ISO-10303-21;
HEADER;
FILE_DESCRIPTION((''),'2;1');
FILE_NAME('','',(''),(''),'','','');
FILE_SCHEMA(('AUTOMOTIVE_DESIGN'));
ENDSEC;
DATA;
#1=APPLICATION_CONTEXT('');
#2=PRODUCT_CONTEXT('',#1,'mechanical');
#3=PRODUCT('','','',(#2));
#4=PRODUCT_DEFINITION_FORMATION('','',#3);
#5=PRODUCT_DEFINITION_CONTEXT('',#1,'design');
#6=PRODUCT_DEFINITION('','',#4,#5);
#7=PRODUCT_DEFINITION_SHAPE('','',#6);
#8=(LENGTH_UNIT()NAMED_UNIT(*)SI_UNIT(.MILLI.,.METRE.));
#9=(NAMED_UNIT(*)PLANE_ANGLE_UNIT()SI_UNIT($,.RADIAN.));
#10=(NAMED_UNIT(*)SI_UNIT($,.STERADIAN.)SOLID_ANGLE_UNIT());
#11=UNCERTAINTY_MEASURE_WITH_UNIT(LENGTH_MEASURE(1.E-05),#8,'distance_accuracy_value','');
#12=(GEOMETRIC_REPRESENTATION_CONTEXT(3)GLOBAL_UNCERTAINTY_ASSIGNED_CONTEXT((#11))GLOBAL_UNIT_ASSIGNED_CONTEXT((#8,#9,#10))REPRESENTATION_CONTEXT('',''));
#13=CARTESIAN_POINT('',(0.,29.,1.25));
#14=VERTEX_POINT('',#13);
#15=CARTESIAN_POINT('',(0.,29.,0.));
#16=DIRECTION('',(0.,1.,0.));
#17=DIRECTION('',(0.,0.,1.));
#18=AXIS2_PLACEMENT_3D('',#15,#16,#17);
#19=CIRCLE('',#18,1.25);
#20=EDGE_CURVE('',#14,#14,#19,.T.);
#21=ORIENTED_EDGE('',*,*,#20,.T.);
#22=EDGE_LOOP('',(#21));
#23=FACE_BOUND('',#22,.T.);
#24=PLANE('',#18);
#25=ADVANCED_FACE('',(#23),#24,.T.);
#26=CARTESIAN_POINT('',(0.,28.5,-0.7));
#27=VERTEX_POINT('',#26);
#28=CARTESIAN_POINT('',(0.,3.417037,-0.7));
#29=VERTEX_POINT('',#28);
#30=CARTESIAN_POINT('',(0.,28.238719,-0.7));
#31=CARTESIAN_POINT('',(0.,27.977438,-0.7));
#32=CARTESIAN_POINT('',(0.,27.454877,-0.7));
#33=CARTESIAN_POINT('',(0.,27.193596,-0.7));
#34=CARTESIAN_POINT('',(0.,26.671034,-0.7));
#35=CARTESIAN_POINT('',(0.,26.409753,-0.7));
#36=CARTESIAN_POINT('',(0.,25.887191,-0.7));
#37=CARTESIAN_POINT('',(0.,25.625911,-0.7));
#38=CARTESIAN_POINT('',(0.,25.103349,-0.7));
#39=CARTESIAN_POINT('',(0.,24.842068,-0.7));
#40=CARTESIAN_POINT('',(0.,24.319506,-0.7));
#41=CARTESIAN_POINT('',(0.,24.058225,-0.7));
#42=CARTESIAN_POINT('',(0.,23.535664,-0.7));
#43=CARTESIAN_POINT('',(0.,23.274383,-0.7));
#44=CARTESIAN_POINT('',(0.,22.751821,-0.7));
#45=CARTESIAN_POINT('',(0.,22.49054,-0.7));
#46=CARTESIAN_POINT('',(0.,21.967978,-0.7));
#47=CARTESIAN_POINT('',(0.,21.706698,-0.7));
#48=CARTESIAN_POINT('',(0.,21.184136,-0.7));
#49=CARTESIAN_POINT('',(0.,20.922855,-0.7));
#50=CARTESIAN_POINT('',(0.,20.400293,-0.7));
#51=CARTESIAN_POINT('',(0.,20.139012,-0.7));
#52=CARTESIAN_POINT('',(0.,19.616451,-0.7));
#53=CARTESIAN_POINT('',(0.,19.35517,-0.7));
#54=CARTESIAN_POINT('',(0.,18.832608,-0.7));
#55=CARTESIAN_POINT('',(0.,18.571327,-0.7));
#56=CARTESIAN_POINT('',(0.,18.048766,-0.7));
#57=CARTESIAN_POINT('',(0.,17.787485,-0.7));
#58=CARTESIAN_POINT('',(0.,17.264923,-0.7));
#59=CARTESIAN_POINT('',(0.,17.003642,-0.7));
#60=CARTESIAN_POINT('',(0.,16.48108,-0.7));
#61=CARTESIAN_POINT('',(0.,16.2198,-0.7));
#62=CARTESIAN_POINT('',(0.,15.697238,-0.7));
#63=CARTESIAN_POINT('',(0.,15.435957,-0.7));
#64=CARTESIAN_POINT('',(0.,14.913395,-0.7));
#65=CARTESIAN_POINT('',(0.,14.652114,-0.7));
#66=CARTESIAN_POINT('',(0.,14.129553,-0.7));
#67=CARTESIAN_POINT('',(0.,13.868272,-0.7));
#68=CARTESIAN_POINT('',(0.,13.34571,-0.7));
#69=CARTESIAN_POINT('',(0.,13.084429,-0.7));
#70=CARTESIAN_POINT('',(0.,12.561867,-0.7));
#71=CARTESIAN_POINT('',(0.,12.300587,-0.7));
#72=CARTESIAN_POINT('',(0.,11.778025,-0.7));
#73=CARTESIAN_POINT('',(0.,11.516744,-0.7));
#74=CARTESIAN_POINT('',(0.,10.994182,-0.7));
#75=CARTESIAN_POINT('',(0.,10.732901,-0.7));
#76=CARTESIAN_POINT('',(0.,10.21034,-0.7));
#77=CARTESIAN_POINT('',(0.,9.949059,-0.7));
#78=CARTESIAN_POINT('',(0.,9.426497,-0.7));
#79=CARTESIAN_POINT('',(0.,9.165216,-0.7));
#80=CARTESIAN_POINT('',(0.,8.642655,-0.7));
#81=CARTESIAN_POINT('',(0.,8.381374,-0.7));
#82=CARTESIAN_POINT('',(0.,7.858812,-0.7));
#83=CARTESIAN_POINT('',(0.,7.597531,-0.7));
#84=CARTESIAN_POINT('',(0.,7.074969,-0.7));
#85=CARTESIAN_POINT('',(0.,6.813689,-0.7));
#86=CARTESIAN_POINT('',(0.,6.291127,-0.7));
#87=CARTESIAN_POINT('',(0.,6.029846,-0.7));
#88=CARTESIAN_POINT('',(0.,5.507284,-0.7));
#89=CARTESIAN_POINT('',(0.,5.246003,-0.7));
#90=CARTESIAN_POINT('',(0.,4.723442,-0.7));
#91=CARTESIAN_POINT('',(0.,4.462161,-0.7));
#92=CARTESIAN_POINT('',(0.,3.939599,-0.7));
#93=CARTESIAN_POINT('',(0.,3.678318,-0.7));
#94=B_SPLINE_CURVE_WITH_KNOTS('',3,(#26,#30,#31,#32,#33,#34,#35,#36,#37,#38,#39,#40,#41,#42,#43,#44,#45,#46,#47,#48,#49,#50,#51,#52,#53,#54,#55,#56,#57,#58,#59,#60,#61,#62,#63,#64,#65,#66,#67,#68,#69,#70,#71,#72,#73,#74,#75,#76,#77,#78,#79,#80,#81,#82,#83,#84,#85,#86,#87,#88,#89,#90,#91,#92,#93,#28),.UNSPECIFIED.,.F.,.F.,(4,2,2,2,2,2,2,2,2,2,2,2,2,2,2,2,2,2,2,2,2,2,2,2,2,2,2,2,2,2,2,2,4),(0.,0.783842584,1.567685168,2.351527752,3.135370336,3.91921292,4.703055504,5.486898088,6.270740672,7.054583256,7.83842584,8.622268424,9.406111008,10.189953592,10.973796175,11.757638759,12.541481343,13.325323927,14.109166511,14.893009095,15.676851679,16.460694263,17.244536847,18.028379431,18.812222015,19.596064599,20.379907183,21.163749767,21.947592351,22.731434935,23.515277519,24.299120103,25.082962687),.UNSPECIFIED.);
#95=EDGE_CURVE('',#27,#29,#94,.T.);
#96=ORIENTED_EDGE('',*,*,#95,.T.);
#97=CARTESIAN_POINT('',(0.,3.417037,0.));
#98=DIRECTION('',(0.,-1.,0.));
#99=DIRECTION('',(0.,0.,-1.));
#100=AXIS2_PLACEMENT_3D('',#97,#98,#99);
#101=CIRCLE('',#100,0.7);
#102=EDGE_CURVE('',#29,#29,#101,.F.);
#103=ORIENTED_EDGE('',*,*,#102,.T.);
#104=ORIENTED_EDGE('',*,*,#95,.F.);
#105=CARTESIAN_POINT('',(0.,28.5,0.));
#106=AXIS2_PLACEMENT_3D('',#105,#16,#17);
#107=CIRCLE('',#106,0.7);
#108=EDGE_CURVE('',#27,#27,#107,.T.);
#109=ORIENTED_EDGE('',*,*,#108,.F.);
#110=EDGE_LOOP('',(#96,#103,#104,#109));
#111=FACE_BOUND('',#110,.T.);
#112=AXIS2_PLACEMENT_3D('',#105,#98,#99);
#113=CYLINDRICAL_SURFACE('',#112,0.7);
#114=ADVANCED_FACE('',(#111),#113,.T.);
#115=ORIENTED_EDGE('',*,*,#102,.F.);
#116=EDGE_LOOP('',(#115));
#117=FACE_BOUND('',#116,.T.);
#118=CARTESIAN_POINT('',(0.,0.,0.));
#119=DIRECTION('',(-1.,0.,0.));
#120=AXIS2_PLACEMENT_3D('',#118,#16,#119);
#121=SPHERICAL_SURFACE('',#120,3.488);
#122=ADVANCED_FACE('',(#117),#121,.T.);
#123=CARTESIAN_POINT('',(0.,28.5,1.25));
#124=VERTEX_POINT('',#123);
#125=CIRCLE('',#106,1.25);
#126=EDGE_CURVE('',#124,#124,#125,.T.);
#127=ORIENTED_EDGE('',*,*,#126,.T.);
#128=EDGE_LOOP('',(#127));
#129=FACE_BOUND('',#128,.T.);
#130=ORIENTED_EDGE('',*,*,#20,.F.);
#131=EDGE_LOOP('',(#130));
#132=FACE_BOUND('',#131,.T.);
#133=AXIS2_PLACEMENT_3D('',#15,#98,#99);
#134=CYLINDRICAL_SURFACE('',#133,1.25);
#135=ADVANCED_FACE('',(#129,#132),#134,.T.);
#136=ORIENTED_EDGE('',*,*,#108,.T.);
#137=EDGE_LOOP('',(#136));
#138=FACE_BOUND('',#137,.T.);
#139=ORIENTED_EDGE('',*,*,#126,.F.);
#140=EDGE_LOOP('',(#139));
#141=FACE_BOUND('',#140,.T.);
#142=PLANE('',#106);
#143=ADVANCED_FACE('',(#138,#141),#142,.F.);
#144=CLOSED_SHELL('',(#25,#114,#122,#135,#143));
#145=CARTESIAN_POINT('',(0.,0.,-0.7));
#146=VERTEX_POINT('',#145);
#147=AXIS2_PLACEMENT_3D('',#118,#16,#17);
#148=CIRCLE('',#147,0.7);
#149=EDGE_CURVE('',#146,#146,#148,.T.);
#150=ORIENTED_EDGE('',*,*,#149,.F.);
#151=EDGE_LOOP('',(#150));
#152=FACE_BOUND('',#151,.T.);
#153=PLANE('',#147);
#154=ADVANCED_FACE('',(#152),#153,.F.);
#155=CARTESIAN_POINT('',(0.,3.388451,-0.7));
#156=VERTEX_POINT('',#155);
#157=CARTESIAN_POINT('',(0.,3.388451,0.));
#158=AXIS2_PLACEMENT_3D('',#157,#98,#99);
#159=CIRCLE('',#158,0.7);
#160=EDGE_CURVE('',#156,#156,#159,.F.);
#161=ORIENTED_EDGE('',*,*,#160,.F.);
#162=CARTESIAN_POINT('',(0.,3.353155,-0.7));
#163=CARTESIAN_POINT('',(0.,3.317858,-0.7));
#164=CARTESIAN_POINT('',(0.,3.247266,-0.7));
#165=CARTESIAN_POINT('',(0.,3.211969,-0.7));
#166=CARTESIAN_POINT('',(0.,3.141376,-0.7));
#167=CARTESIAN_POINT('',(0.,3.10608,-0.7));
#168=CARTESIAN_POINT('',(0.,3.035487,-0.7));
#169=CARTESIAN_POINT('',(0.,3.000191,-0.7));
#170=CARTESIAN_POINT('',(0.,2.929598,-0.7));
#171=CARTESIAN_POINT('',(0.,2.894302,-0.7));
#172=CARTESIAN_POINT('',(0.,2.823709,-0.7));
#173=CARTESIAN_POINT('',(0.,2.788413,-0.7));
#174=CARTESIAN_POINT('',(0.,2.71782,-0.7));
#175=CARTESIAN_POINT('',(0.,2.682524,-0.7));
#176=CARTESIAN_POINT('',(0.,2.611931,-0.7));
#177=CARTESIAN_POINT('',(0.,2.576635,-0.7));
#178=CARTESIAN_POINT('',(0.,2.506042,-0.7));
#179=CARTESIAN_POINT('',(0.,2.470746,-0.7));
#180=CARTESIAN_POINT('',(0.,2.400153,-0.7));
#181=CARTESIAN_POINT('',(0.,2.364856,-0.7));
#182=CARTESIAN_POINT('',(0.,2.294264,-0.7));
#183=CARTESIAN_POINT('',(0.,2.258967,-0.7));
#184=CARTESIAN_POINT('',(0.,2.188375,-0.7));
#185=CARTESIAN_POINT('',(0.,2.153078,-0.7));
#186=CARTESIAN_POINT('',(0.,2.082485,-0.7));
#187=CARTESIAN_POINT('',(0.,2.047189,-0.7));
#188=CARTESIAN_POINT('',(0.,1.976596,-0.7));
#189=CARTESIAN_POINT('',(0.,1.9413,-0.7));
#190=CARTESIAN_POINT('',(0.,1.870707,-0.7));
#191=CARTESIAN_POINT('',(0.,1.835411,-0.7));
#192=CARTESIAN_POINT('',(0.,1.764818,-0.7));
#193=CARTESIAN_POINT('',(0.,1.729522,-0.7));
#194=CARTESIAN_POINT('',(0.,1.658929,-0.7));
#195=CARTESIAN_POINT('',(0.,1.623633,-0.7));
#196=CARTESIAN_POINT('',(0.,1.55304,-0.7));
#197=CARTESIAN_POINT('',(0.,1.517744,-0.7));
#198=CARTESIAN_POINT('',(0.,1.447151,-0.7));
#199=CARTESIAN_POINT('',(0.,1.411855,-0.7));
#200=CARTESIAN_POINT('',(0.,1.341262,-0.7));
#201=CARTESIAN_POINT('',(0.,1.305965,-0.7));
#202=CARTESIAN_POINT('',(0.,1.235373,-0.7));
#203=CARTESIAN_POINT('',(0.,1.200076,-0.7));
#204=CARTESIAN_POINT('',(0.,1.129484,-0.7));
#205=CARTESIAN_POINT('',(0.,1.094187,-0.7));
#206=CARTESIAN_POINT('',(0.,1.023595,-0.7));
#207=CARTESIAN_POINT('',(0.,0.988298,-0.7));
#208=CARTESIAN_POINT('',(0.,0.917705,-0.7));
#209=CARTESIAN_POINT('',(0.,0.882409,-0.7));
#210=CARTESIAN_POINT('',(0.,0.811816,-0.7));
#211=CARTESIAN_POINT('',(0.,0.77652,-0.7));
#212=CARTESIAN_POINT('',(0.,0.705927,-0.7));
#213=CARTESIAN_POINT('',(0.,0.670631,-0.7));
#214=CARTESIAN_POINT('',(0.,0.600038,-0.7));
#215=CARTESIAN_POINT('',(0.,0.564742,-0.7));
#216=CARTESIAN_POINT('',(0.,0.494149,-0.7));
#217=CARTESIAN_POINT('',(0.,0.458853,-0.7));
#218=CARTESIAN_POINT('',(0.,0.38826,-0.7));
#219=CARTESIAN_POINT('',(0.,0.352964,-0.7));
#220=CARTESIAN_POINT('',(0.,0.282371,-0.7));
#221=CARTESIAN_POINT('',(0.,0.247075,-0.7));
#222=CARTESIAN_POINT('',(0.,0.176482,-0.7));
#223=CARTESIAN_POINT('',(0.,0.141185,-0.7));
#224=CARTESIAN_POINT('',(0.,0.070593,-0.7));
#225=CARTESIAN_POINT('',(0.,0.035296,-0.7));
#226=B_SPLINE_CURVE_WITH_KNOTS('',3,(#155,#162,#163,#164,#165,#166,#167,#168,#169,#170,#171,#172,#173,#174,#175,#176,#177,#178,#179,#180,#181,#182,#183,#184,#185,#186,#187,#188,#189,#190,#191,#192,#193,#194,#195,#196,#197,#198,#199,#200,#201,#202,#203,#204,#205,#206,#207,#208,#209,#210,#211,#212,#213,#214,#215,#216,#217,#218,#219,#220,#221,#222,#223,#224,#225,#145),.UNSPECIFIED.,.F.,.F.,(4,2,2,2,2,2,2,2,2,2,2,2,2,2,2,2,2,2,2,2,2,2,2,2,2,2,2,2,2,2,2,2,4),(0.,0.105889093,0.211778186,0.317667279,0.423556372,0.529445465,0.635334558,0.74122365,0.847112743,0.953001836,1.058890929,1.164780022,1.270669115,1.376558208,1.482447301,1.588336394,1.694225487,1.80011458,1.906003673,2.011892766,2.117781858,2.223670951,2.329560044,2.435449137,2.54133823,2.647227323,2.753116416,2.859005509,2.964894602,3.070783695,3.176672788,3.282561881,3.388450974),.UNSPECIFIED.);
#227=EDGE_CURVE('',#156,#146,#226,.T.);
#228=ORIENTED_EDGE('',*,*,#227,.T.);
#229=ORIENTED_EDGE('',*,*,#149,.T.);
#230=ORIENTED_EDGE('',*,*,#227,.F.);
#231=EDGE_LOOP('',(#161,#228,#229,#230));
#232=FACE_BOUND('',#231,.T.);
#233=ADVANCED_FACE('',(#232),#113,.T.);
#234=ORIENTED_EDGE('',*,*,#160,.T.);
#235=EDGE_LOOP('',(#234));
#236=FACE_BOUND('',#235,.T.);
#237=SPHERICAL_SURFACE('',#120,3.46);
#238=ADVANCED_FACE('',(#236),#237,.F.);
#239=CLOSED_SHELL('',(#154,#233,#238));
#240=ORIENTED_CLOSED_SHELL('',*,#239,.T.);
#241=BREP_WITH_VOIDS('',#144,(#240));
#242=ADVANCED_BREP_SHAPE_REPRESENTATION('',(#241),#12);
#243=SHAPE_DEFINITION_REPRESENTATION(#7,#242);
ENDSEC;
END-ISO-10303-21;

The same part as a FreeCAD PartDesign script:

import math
import FreeCAD as App
import Part
import Sketcher
from FreeCAD import Vector
Q = App.Units.Quantity

doc = App.newDocument("Part")
body = doc.addObject("PartDesign::Body", "Body")

# Sketch on XY plane
sketch1 = body.newObject("Sketcher::SketchObject", "Sketch")
sketch1.AttachmentSupport = (doc.getObject("XY_Plane"), [""])
sketch1.MapMode = "FlatFace"
sketch1.addGeometry(Part.ArcOfCircle(Part.Circle(Vector(0, 0, 0), Vector(0, 0, 1), 3.46), math.radians(-90), math.radians(90)), False)
sketch1.addGeometry(Part.LineSegment(Vector(0, -3.46, 0), Vector(0, -3.488, 0)), False)
sketch1.addGeometry(Part.ArcOfCircle(Part.Circle(Vector(0, 0, 0), Vector(0, 0, 1), 3.488), math.radians(-90), math.radians(90)), False)
sketch1.addGeometry(Part.LineSegment(Vector(0, 3.488, 0), Vector(0, 3.46, 0)), False)
sketch1.addConstraint(Sketcher.Constraint("Coincident", 0, 1, 1, 1))
sketch1.addConstraint(Sketcher.Constraint("Coincident", 1, 2, 2, 1))
sketch1.addConstraint(Sketcher.Constraint("Coincident", 2, 2, 3, 1))
sketch1.addConstraint(Sketcher.Constraint("Coincident", 3, 2, 0, 2))
sketch1.addConstraint(Sketcher.Constraint("Vertical", 1))
sketch1.addConstraint(Sketcher.Constraint("Vertical", 3))
sketch1.addConstraint(Sketcher.Constraint("Coincident", 0, 3, -1, 1))
sketch1.addConstraint(Sketcher.Constraint("Coincident", 2, 3, -1, 1))
sketch1.addConstraint(Sketcher.Constraint("PointOnObject", 0, 1, -2))
sketch1.addConstraint(Sketcher.Constraint("PointOnObject", 2, 2, -2))
sketch1.addConstraint(Sketcher.Constraint("Radius", 0, Q("3.46 mm")))
sketch1.addConstraint(Sketcher.Constraint("Radius", 2, Q("3.488 mm")))
revolution = body.newObject("PartDesign::Revolution", "Revolution")
revolution.Profile = sketch1
revolution.ReferenceAxis = (sketch1, ["V_Axis"])
revolution.Angle = 360

# Sketch on XZ plane
sketch2 = body.newObject("Sketcher::SketchObject", "Sketch001")
sketch2.AttachmentSupport = (doc.getObject("XZ_Plane"), [""])
sketch2.MapMode = "FlatFace"
sketch2.addGeometry(Part.Circle(Vector(0, 0, 0), Vector(0, 0, 1), 0.7), False)
sketch2.addConstraint(Sketcher.Constraint("Coincident", 0, 3, -1, 1))
sketch2.addConstraint(Sketcher.Constraint("Diameter", 0, Q("1.4 mm")))
pad1 = body.newObject("PartDesign::Pad", "Pad")
pad1.Profile = sketch2
pad1.Length = 28.5
pad1.Reversed = True

# Sketch on XZ plane
sketch3 = body.newObject("Sketcher::SketchObject", "Sketch002")
sketch3.AttachmentSupport = (doc.getObject("XZ_Plane"), [""])
sketch3.MapMode = "FlatFace"
sketch3.AttachmentOffset = App.Placement(Vector(0, 0, -28.5), App.Rotation())
sketch3.addGeometry(Part.Circle(Vector(0, 0, 0), Vector(0, 0, 1), 1.2), False)
sketch3.addConstraint(Sketcher.Constraint("Coincident", 0, 3, -1, 1))
sketch3.addConstraint(Sketcher.Constraint("Diameter", 0, Q("2.5 mm")))
pad2 = body.newObject("PartDesign::Pad", "Pad001")
pad2.Profile = sketch3
pad2.Length = 0.5
pad2.Reversed = True

doc.recompute()
